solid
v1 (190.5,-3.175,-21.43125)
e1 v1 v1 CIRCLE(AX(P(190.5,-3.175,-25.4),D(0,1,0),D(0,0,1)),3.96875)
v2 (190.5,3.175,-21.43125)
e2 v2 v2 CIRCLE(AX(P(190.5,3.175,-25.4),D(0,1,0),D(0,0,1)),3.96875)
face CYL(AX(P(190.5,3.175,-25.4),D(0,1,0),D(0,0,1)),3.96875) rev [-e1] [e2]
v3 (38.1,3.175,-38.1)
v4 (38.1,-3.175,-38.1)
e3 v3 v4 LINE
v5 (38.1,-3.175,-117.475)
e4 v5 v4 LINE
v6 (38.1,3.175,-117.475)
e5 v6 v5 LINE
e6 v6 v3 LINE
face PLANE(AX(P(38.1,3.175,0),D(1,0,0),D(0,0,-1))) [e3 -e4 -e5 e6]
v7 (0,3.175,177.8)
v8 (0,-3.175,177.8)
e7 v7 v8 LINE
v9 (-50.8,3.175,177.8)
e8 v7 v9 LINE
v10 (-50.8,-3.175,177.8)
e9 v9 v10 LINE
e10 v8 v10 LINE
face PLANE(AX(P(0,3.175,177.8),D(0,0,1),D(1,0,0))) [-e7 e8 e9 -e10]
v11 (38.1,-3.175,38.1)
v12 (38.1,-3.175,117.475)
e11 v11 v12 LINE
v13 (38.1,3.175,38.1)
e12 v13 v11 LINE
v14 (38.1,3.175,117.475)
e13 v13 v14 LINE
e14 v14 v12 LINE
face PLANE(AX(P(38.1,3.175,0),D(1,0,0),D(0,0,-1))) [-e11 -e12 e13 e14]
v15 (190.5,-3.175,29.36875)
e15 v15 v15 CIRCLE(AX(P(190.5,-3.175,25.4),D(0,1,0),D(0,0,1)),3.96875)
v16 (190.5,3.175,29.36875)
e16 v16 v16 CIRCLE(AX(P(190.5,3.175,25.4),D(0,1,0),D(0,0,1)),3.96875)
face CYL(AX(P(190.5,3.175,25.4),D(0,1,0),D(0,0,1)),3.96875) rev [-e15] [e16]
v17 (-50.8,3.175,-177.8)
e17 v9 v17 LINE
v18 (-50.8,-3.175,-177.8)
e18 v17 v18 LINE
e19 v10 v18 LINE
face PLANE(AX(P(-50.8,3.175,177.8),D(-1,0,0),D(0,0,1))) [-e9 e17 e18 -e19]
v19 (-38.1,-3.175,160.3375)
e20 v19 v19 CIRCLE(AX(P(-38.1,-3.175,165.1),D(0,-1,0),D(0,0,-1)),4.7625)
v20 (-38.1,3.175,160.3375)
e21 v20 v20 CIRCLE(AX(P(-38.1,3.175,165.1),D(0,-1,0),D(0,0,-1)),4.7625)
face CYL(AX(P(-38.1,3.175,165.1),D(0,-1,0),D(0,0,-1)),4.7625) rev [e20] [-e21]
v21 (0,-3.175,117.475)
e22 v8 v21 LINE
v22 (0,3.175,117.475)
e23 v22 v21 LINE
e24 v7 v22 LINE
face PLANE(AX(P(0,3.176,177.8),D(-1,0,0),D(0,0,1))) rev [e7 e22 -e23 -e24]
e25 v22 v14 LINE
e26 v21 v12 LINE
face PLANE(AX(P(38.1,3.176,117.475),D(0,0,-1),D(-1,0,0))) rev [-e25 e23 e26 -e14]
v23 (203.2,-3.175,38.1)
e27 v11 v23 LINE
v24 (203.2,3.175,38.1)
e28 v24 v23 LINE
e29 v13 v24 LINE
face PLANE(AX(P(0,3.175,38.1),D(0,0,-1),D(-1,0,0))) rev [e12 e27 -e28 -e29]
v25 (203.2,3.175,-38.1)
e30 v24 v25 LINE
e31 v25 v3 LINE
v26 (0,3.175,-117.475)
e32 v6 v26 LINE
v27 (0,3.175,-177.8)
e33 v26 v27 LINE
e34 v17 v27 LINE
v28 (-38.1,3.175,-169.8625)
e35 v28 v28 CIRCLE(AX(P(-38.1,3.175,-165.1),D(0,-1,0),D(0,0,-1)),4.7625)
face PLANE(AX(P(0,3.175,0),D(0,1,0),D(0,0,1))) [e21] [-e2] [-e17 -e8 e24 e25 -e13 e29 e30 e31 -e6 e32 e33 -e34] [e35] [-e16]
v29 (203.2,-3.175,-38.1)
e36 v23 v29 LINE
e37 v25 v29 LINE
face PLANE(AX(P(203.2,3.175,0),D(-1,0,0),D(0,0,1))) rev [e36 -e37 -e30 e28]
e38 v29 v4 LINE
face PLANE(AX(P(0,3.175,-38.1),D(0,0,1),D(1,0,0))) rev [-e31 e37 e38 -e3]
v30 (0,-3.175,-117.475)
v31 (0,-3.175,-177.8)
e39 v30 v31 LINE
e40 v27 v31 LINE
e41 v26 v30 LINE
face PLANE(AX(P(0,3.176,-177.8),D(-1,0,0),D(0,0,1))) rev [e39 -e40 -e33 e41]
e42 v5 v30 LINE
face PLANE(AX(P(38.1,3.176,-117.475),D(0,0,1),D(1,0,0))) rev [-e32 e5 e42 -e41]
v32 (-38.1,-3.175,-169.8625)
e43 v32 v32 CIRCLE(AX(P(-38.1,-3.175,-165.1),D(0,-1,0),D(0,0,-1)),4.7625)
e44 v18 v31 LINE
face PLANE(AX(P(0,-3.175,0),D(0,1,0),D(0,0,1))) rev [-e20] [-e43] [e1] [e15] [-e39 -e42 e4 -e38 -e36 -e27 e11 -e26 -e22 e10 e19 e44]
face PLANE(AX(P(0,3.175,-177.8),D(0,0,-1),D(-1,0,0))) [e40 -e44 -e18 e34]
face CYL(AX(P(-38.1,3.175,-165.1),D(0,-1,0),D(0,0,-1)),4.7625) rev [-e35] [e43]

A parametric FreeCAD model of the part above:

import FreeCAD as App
import Part
import Sketcher

V = App.Vector
Q = App.Units.Quantity

doc = App.newDocument("Part")
body = doc.addObject("PartDesign::Body", "Body")

# Sketch on XZ plane
sketch1 = doc.addObject("Sketcher::SketchObject", "Sketch")
body.addObject(sketch1)
sketch1.AttachmentSupport = (doc.XZ_Plane, [""])
sketch1.MapMode = "FlatFace"
sketch1.addGeometry([
    Part.LineSegment(V(0, 178, 0), V(38, 178, 0)),  # 0
    Part.LineSegment(V(38, 178, 0), V(38, 38, 0)),  # 1
    Part.LineSegment(V(38, 38, 0), V(203, 38, 0)),  # 2
    Part.LineSegment(V(203, 38, 0), V(203, -38, 0)),  # 3
    Part.LineSegment(V(203, -38, 0), V(38, -38, 0)),  # 4
    Part.LineSegment(V(38, -38, 0), V(38, -178, 0)),  # 5
    Part.LineSegment(V(38, -178, 0), V(0, -178, 0)),  # 6
    Part.LineSegment(V(0, -178, 0), V(0, 178, 0)),  # 7
], False)
sketch1.addConstraint([
    Sketcher.Constraint("Coincident", 0, 2, 1, 1),
    Sketcher.Constraint("Coincident", 1, 2, 2, 1),
    Sketcher.Constraint("Coincident", 2, 2, 3, 1),
    Sketcher.Constraint("Coincident", 3, 2, 4, 1),
    Sketcher.Constraint("Coincident", 4, 2, 5, 1),
    Sketcher.Constraint("Coincident", 5, 2, 6, 1),
    Sketcher.Constraint("Coincident", 6, 2, 7, 1),
    Sketcher.Constraint("Coincident", 7, 2, 0, 1),
    Sketcher.Constraint("Horizontal", 0),
    Sketcher.Constraint("Vertical", 1),
    Sketcher.Constraint("Horizontal", 2),
    Sketcher.Constraint("Vertical", 3),
    Sketcher.Constraint("Horizontal", 4),
    Sketcher.Constraint("Vertical", 5),
    Sketcher.Constraint("Horizontal", 6),
    Sketcher.Constraint("Vertical", 7),
    Sketcher.Constraint("Symmetric", 6, 2, 7, 2, -1, 1),
    Sketcher.Constraint("Symmetric", 1, 2, 4, 2, -1),
    Sketcher.Constraint("DistanceY", 3, 2, 3, 1, Q("3 in")),
    Sketcher.Constraint("DistanceY", 7, 1, 7, 2, Q("14 in")),
    Sketcher.Constraint("DistanceX", 0, 1, 0, 2, Q("1.5 in")),
    Sketcher.Constraint("DistanceX", 2, 1, 2, 2, Q("6.5 in")),
])
pad1 = doc.addObject("PartDesign::Pad", "Pad")
body.addObject(pad1)
pad1.Profile = sketch1
pad1.Length = Q("0.25 in")
pad1.Midplane = True

# Sketch on XZ plane
sketch2 = doc.addObject("Sketcher::SketchObject", "Sketch001")
body.addObject(sketch2)
sketch2.AttachmentSupport = (doc.XZ_Plane, [""])
sketch2.MapMode = "FlatFace"
sketch2.AttachmentOffset = App.Placement(V(0, 0, -0.125 * 25.4), App.Rotation())
sketch2.addGeometry([
    Part.Circle(V(190.5, -25.4, 0), V(0, 0, 1), 4),
    Part.Circle(V(190.5, 25.4, 0), V(0, 0, 1), 4),
], False)
sketch2.addConstraint([
    Sketcher.Constraint("Equal", 0, 1),
    Sketcher.Constraint("Symmetric", 0, 3, 1, 3, -1),
    Sketcher.Constraint("Diameter", 0, Q("0.3125 in")),
    Sketcher.Constraint("DistanceY", 0, 3, -1, 1, Q("1 in")),
    Sketcher.Constraint("DistanceX", -1, 1, 0, 3, Q("7.5 in")),
])
doc.recompute()
hole = doc.addObject("PartDesign::Hole", "Hole")
body.addObject(hole)
hole.Profile = sketch2
hole.ThreadType = "None"
hole.Diameter = Q("0.3125 in")
hole.DepthType = "ThroughAll"
hole.Reversed = True

# Sketch on XZ plane
sketch3 = doc.addObject("Sketcher::SketchObject", "Sketch002")
body.addObject(sketch3)
sketch3.AttachmentSupport = (doc.XZ_Plane, [""])
sketch3.MapMode = "FlatFace"
sketch3.AttachmentOffset = App.Placement(V(0, 0, 0.125 * 25.4), App.Rotation())
sketch3.addGeometry([
    Part.LineSegment(V(-50.8, 177.8, 0), V(-50.8, -177.8, 0)),  # 0
    Part.LineSegment(V(-50.8, -177.8, 0), V(0, -177.8, 0)),  # 1
    Part.LineSegment(V(0, -177.8, 0), V(0, 177.8, 0)),  # 2
    Part.LineSegment(V(0, 177.8, 0), V(-50.8, 177.8, 0)),  # 3
    Part.Circle(V(-38.1, -165.1, 0), V(0, 0, 1), 4.8),  # 4
    Part.Circle(V(-38.1, 165.1, 0), V(0, 0, 1), 4.8),  # 5
], False)
sketch3.addConstraint([
    Sketcher.Constraint("Coincident", 0, 2, 1, 1),
    Sketcher.Constraint("Coincident", 1, 2, 2, 1),
    Sketcher.Constraint("Coincident", 2, 2, 3, 1),
    Sketcher.Constraint("Coincident", 3, 2, 0, 1),
    Sketcher.Constraint("Vertical", 0),
    Sketcher.Constraint("Horizontal", 1),
    Sketcher.Constraint("Vertical", 2),
    Sketcher.Constraint("Horizontal", 3),
    Sketcher.Constraint("Equal", 4, 5),
    Sketcher.Constraint("Symmetric", 1, 2, 2, 2, -1, 1),
    Sketcher.Constraint("Symmetric", 4, 3, 5, 3, -1),
    Sketcher.Constraint("DistanceX", 1, 1, 1, 2, Q("2 in")),
    Sketcher.Constraint("DistanceY", 0, 2, 0, 1, Q("14 in")),
    Sketcher.Constraint("Diameter", 4, Q("0.375 in")),
    Sketcher.Constraint("DistanceY", 4, 3, 5, 3, Q("13 in")),
    Sketcher.Constraint("DistanceX", 4, 3, -1, 1, Q("1.5 in")),
])
pad2 = doc.addObject("PartDesign::Pad", "Pad001")
body.addObject(pad2)
pad2.Profile = sketch3
pad2.Length = Q("0.25 in")
pad2.Reversed = True

# Sketch on XZ plane
sketch4 = doc.addObject("Sketcher::SketchObject", "Sketch003")
body.addObject(sketch4)
sketch4.AttachmentSupport = (doc.XZ_Plane, [""])
sketch4.MapMode = "FlatFace"
sketch4.AttachmentOffset = App.Placement(V(0, 0, 0.125 * 25.4), App.Rotation())
sketch4.addGeometry([
    Part.LineSegment(V(0, 178, 0), V(0, 117, 0)),
    Part.LineSegment(V(0, 117, 0), V(38, 117, 0)),
    Part.LineSegment(V(38, 117, 0), V(38, 178, 0)),
    Part.LineSegment(V(38, 178, 0), V(0, 178, 0)),
], False)
sketch4.addConstraint([
    Sketcher.Constraint("Coincident", 0, 2, 1, 1),
    Sketcher.Constraint("Coincident", 1, 2, 2, 1),
    Sketcher.Constraint("Coincident", 2, 2, 3, 1),
    Sketcher.Constraint("Coincident", 3, 2, 0, 1),
    Sketcher.Constraint("Vertical", 0),
    Sketcher.Constraint("Horizontal", 1),
    Sketcher.Constraint("Vertical", 2),
    Sketcher.Constraint("Horizontal", 3),
    Sketcher.Constraint("PointOnObject", 0, 2, -2),
    Sketcher.Constraint("DistanceX", 1, 1, 1, 2, Q("1.5 in")),
    Sketcher.Constraint("DistanceY", -1, 1, 2, 2, Q("7 in")),
    Sketcher.Constraint("DistanceY", 0, 2, 0, 1, Q("2.375 in")),
])
pocket1 = doc.addObject("PartDesign::Pocket", "Pocket")
body.addObject(pocket1)
pocket1.Profile = sketch4
pocket1.Type = "UpToFirst"

# Sketch on XZ plane
sketch5 = doc.addObject("Sketcher::SketchObject", "Sketch004")
body.addObject(sketch5)
sketch5.AttachmentSupport = (doc.XZ_Plane, [""])
sketch5.MapMode = "FlatFace"
sketch5.AttachmentOffset = App.Placement(V(0, 0, 0.125 * 25.4), App.Rotation())
sketch5.addGeometry([
    Part.LineSegment(V(0, -117, 0), V(0, -178, 0)),
    Part.LineSegment(V(0, -178, 0), V(38, -178, 0)),
    Part.LineSegment(V(38, -178, 0), V(38, -117, 0)),
    Part.LineSegment(V(38, -117, 0), V(0, -117, 0)),
], False)
sketch5.addConstraint([
    Sketcher.Constraint("Coincident", 0, 2, 1, 1),
    Sketcher.Constraint("Coincident", 1, 2, 2, 1),
    Sketcher.Constraint("Coincident", 2, 2, 3, 1),
    Sketcher.Constraint("Coincident", 3, 2, 0, 1),
    Sketcher.Constraint("Vertical", 0),
    Sketcher.Constraint("Horizontal", 1),
    Sketcher.Constraint("Vertical", 2),
    Sketcher.Constraint("Horizontal", 3),
    Sketcher.Constraint("PointOnObject", 0, 2, -2),
    Sketcher.Constraint("DistanceX", 1, 1, 1, 2, Q("1.5 in")),
    Sketcher.Constraint("DistanceY", 0, 2, -1, 1, Q("7 in")),
    Sketcher.Constraint("DistanceY", 0, 2, 0, 1, Q("2.375 in")),
])
pocket2 = doc.addObject("PartDesign::Pocket", "Pocket001")
body.addObject(pocket2)
pocket2.Profile = sketch5
pocket2.Type = "UpToFirst"

doc.recompute()
